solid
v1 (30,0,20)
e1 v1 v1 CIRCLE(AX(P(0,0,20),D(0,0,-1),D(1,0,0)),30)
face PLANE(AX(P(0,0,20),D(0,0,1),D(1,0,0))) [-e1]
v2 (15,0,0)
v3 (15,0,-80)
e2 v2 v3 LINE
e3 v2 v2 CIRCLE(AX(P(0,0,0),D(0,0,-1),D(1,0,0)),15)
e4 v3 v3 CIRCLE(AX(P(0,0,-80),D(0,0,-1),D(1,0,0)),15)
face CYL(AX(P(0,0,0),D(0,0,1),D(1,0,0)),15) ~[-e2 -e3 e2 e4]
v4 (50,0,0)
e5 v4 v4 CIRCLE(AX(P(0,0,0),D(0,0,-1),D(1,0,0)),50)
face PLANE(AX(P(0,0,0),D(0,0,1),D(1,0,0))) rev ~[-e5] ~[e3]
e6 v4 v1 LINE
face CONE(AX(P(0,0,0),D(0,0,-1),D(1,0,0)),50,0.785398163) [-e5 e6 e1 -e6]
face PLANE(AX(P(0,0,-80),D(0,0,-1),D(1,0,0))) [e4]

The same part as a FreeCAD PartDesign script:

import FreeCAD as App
import Part
import Sketcher

doc = App.newDocument("Part")
body = doc.addObject("PartDesign::Body", "Body")

# Sketch on XY plane
sketch1 = body.newObject("Sketcher::SketchObject", "Sketch")
sketch1.AttachmentSupport = (doc.getObject("XY_Plane"), [""])
sketch1.MapMode = "FlatFace"
sketch1.addGeometry(Part.Circle(App.Vector(0, 0, 0), App.Vector(0, 0, 1), 50), False)
sketch1.addConstraint(Sketcher.Constraint("Coincident", 0, 3, -1, 1))
sketch1.addConstraint(Sketcher.Constraint("Diameter", 0, 100.0))
pad1 = body.newObject("PartDesign::Pad", "Pad")
pad1.Profile = sketch1
pad1.Length = 20
pad1.TaperAngle = -45

# Sketch on XY plane
sketch2 = body.newObject("Sketcher::SketchObject", "Sketch001")
sketch2.AttachmentSupport = (doc.getObject("XY_Plane"), [""])
sketch2.MapMode = "FlatFace"
sketch2.addGeometry(Part.Circle(App.Vector(0, 0, 0), App.Vector(0, 0, 1), 15), False)
sketch2.addConstraint(Sketcher.Constraint("Coincident", 0, 3, -1, 1))
sketch2.addConstraint(Sketcher.Constraint("Diameter", 0, 30.0))
pad2 = body.newObject("PartDesign::Pad", "Pad001")
pad2.Profile = sketch2
pad2.Length = 80
pad2.Reversed = True

doc.recompute()
